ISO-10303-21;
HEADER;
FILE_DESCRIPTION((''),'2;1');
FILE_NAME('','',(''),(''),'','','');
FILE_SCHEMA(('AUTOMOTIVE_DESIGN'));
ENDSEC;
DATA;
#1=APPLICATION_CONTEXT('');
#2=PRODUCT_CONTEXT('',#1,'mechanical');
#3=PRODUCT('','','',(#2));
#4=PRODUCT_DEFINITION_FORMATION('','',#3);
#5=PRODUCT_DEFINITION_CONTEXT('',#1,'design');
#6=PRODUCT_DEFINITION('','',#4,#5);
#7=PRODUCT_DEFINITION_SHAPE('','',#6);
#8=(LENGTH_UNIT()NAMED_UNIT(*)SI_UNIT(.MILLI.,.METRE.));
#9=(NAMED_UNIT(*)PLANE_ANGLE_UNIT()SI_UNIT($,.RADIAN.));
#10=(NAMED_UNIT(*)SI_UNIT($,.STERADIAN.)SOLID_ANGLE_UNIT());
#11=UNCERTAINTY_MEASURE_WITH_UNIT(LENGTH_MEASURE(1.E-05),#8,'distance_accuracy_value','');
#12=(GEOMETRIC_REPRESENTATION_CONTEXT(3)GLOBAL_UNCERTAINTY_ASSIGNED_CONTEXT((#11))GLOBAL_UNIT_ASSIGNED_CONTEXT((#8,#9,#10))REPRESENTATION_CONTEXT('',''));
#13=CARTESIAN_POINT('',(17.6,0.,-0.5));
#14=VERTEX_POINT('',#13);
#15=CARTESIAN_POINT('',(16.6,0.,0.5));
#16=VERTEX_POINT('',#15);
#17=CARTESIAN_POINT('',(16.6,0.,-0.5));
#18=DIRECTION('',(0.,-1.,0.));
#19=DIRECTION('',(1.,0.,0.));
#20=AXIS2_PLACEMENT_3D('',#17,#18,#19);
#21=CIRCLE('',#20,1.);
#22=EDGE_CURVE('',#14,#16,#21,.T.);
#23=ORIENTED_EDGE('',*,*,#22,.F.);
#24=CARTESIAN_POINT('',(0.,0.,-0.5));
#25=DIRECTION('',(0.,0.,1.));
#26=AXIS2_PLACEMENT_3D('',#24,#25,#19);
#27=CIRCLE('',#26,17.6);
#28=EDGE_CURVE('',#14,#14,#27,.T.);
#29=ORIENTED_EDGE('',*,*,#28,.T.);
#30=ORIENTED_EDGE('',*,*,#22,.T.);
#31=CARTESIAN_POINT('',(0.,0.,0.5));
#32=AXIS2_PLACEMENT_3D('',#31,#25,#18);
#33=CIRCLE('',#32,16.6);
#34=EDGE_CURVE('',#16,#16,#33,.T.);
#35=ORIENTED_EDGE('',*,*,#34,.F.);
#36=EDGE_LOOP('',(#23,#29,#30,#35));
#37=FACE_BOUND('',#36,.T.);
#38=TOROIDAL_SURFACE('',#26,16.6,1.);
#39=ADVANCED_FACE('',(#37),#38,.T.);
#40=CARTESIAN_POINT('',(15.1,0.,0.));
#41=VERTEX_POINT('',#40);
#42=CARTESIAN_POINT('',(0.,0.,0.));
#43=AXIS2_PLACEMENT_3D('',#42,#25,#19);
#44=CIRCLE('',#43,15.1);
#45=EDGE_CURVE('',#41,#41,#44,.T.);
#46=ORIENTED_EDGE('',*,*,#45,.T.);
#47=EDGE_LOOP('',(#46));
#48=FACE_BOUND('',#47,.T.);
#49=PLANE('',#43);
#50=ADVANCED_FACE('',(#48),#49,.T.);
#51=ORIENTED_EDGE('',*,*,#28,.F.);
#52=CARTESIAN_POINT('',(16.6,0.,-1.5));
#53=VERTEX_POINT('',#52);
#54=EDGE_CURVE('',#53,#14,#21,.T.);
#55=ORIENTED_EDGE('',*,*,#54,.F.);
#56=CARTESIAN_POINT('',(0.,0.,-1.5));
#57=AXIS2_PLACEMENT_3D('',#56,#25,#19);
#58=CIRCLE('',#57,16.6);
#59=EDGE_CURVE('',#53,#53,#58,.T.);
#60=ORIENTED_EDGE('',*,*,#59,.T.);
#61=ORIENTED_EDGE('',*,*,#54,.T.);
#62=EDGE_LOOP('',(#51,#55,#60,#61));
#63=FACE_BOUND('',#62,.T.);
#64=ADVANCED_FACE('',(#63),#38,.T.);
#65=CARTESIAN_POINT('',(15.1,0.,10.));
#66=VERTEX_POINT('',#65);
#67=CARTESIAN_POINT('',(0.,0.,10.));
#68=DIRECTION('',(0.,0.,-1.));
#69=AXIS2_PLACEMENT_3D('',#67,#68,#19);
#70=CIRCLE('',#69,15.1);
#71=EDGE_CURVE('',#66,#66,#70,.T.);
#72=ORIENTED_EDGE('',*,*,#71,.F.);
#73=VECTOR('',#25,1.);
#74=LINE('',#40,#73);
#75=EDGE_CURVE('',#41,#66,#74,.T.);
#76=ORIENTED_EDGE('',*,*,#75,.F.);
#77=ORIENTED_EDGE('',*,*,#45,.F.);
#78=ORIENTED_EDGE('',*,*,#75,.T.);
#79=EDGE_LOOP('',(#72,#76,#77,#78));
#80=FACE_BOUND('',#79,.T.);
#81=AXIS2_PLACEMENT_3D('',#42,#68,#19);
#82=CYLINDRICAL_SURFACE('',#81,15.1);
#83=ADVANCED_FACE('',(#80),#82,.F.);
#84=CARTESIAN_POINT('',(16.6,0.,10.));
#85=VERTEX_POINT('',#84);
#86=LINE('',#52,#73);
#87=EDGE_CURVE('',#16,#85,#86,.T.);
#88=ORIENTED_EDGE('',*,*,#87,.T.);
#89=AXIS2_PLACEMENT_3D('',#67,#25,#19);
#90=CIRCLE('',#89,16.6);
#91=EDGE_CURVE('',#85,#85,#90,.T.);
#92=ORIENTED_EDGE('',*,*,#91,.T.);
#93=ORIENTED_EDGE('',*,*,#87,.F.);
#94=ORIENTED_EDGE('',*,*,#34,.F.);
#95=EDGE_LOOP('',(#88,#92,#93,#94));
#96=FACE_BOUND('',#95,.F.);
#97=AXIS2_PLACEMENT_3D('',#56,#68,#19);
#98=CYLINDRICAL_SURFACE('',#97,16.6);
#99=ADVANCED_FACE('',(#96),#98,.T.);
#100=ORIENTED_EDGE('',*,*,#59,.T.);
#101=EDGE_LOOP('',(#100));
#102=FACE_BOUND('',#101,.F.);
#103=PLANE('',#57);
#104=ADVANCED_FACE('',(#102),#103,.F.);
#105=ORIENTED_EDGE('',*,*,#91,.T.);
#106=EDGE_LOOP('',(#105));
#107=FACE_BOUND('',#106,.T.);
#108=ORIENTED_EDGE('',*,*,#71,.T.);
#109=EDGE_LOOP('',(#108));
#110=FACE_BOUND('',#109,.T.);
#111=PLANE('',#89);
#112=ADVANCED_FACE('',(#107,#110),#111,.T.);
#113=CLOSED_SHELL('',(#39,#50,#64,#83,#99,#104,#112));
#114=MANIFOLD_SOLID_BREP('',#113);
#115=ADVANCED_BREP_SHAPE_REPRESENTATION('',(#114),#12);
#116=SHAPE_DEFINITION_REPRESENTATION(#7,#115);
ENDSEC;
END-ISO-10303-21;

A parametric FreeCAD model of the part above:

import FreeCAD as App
import Part
import Sketcher
from FreeCAD import Vector

doc = App.newDocument("Part")
body = doc.addObject("PartDesign::Body", "Body")

sketch1 = body.newObject("Sketcher::SketchObject", "Sketch")
sketch1.AttachmentSupport = (doc.getObject("XZ_Plane"), [""])
sketch1.MapMode = "FlatFace"
sketch1.addGeometry(Part.Circle(Vector(16.6, -0.5, 0), Vector(0, 0, 1), 1), False)
sketch1.addConstraint([
    Sketcher.Constraint("Diameter", 0, 2.0),
    Sketcher.Constraint("DistanceX", -1, 1, 0, 3, 16.6),
    Sketcher.Constraint("DistanceY", 0, 3, -1, 1, 0.5),
])
revolution = body.newObject("PartDesign::Revolution", "Revolution")
revolution.Profile = sketch1
revolution.ReferenceAxis = (sketch1, ["V_Axis"])
revolution.Angle = 360
body2 = doc.addObject("PartDesign::Body", "Body001")

sketch2 = body2.newObject("Sketcher::SketchObject", "Sketch001")
sketch2.AttachmentSupport = (doc.getObject("XY_Plane001"), [""])
sketch2.MapMode = "FlatFace"
sketch2.addGeometry(Part.Circle(Vector(0, 0, 0), Vector(0, 0, 1), 15), False)
sketch2.addConstraint([
    Sketcher.Constraint("Coincident", 0, 3, -1, 1),
    Sketcher.Constraint("Diameter", 0, 30.2),
])
pad1 = body2.newObject("PartDesign::Pad", "Pad")
pad1.Profile = sketch2
pad1.Length = 12.5
body3 = doc.addObject("PartDesign::Body", "Body002")

sketch3 = body3.newObject("Sketcher::SketchObject", "Sketch002")
sketch3.AttachmentSupport = (doc.getObject("XY_Plane002"), [""])
sketch3.MapMode = "FlatFace"
sketch3.AttachmentOffset = App.Placement(Vector(0, 0, -1.5), App.Rotation())
sketch3.addGeometry(Part.Circle(Vector(0, 0, 0), Vector(0, 0, 1), 17), False)
sketch3.addConstraint([
    Sketcher.Constraint("Coincident", 0, 3, -1, 1),
    Sketcher.Constraint("Diameter", 0, 33.2),
])
pad2 = body3.newObject("PartDesign::Pad", "Pad001")
pad2.Profile = sketch3
pad2.Length = 11.5
doc.recompute()

boolean = body3.newObject("PartDesign::Boolean", "Boolean")
boolean.Type = "Cut"
boolean.addObjects([body2])
doc.recompute()

boolean2 = body3.newObject("PartDesign::Boolean", "Boolean001")
boolean2.Type = "Fuse"
boolean2.addObjects([body])

doc.recompute()
